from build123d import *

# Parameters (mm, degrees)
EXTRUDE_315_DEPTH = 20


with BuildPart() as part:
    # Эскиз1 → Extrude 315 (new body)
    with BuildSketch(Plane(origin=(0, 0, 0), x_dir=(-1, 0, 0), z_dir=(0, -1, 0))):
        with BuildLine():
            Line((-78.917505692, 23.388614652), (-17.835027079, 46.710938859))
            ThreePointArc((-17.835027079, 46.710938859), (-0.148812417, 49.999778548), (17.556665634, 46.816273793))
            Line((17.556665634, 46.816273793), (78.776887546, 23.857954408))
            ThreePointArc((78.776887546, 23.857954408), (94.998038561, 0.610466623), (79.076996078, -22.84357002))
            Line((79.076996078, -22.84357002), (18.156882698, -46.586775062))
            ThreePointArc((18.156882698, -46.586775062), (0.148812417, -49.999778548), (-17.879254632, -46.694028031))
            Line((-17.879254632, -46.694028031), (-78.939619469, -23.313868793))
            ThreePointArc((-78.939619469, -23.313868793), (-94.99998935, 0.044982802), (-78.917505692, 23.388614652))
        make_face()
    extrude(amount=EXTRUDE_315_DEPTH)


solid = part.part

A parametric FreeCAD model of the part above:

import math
import FreeCAD as App
import Part
import Sketcher

doc = App.newDocument("Part")
body = doc.addObject("PartDesign::Body", "Body")

# Sketch on XZ plane
sketch1 = body.newObject("Sketcher::SketchObject", "Sketch")
sketch1.AttachmentSupport = (doc.getObject("XZ_Plane"), [""])
sketch1.MapMode = "FlatFace"
sketch1.addGeometry(Part.LineSegment(App.Vector(17.835027, -46.710939, 0), App.Vector(78.917506, -23.388615, 0)), False)
sketch1.addGeometry(Part.ArcOfCircle(Part.Circle(App.Vector(69.999992, -0.033145, 0), App.Vector(0, 0, 1), 25), math.radians(-69.102297), math.radians(69.048038)), False)
sketch1.addGeometry(Part.LineSegment(App.Vector(78.939619, 23.313869, 0), App.Vector(17.879255, 46.694028, 0)), False)
sketch1.addGeometry(Part.ArcOfCircle(Part.Circle(App.Vector(0, 0, 0), App.Vector(0, 0, 1), 50), math.radians(69.048038), math.radians(111.293016)), False)
sketch1.addGeometry(Part.LineSegment(App.Vector(-18.156883, 46.586775, 0), App.Vector(-79.076996, 22.84357, 0)), False)
sketch1.addGeometry(Part.ArcOfCircle(Part.Circle(App.Vector(-69.998555, -0.449818, 0), App.Vector(0, 0, 1), 25), math.radians(111.293016), math.radians(249.443351)), False)
sketch1.addGeometry(Part.LineSegment(App.Vector(-78.776888, -23.857954, 0), App.Vector(-17.556666, -46.816274, 0)), False)
sketch1.addGeometry(Part.ArcOfCircle(Part.Circle(App.Vector(0, 0, 0), App.Vector(0, 0, 1), 50), math.radians(-110.556649), math.radians(-69.102297)), False)
sketch1.addConstraint(Sketcher.Constraint("Tangent", 0, 2, 1, 1))
sketch1.addConstraint(Sketcher.Constraint("Tangent", 1, 2, 2, 1))
sketch1.addConstraint(Sketcher.Constraint("Tangent", 2, 2, 3, 1))
sketch1.addConstraint(Sketcher.Constraint("Tangent", 3, 2, 4, 1))
sketch1.addConstraint(Sketcher.Constraint("Tangent", 4, 2, 5, 1))
sketch1.addConstraint(Sketcher.Constraint("Tangent", 5, 2, 6, 1))
sketch1.addConstraint(Sketcher.Constraint("Tangent", 6, 2, 7, 1))
sketch1.addConstraint(Sketcher.Constraint("Tangent", 7, 2, 0, 1))
sketch1.addConstraint(Sketcher.Constraint("Coincident", 3, 3, -1, 1))
sketch1.addConstraint(Sketcher.Constraint("Coincident", 7, 3, -1, 1))
sketch1.addConstraint(Sketcher.Constraint("Equal", 1, 5))
sketch1.addConstraint(Sketcher.Constraint("Equal", 3, 7))
sketch1.addConstraint(Sketcher.Constraint("Equal", 2, 4))
sketch1.addConstraint(Sketcher.Constraint("Radius", 1, 25.0))
sketch1.addConstraint(Sketcher.Constraint("Radius", 3, 50.0))
sketch1.addConstraint(Sketcher.Constraint("DistanceX", -1, 1, 1, 2, 78.939619))
sketch1.addConstraint(Sketcher.Constraint("DistanceY", -1, 1, 1, 2, 23.313869))
sketch1.addConstraint(Sketcher.Constraint("DistanceY", -1, 1, 4, 2, 22.84357))
pad1 = body.newObject("PartDesign::Pad", "Pad")
pad1.Profile = sketch1
pad1.Length = 20

doc.recompute()
